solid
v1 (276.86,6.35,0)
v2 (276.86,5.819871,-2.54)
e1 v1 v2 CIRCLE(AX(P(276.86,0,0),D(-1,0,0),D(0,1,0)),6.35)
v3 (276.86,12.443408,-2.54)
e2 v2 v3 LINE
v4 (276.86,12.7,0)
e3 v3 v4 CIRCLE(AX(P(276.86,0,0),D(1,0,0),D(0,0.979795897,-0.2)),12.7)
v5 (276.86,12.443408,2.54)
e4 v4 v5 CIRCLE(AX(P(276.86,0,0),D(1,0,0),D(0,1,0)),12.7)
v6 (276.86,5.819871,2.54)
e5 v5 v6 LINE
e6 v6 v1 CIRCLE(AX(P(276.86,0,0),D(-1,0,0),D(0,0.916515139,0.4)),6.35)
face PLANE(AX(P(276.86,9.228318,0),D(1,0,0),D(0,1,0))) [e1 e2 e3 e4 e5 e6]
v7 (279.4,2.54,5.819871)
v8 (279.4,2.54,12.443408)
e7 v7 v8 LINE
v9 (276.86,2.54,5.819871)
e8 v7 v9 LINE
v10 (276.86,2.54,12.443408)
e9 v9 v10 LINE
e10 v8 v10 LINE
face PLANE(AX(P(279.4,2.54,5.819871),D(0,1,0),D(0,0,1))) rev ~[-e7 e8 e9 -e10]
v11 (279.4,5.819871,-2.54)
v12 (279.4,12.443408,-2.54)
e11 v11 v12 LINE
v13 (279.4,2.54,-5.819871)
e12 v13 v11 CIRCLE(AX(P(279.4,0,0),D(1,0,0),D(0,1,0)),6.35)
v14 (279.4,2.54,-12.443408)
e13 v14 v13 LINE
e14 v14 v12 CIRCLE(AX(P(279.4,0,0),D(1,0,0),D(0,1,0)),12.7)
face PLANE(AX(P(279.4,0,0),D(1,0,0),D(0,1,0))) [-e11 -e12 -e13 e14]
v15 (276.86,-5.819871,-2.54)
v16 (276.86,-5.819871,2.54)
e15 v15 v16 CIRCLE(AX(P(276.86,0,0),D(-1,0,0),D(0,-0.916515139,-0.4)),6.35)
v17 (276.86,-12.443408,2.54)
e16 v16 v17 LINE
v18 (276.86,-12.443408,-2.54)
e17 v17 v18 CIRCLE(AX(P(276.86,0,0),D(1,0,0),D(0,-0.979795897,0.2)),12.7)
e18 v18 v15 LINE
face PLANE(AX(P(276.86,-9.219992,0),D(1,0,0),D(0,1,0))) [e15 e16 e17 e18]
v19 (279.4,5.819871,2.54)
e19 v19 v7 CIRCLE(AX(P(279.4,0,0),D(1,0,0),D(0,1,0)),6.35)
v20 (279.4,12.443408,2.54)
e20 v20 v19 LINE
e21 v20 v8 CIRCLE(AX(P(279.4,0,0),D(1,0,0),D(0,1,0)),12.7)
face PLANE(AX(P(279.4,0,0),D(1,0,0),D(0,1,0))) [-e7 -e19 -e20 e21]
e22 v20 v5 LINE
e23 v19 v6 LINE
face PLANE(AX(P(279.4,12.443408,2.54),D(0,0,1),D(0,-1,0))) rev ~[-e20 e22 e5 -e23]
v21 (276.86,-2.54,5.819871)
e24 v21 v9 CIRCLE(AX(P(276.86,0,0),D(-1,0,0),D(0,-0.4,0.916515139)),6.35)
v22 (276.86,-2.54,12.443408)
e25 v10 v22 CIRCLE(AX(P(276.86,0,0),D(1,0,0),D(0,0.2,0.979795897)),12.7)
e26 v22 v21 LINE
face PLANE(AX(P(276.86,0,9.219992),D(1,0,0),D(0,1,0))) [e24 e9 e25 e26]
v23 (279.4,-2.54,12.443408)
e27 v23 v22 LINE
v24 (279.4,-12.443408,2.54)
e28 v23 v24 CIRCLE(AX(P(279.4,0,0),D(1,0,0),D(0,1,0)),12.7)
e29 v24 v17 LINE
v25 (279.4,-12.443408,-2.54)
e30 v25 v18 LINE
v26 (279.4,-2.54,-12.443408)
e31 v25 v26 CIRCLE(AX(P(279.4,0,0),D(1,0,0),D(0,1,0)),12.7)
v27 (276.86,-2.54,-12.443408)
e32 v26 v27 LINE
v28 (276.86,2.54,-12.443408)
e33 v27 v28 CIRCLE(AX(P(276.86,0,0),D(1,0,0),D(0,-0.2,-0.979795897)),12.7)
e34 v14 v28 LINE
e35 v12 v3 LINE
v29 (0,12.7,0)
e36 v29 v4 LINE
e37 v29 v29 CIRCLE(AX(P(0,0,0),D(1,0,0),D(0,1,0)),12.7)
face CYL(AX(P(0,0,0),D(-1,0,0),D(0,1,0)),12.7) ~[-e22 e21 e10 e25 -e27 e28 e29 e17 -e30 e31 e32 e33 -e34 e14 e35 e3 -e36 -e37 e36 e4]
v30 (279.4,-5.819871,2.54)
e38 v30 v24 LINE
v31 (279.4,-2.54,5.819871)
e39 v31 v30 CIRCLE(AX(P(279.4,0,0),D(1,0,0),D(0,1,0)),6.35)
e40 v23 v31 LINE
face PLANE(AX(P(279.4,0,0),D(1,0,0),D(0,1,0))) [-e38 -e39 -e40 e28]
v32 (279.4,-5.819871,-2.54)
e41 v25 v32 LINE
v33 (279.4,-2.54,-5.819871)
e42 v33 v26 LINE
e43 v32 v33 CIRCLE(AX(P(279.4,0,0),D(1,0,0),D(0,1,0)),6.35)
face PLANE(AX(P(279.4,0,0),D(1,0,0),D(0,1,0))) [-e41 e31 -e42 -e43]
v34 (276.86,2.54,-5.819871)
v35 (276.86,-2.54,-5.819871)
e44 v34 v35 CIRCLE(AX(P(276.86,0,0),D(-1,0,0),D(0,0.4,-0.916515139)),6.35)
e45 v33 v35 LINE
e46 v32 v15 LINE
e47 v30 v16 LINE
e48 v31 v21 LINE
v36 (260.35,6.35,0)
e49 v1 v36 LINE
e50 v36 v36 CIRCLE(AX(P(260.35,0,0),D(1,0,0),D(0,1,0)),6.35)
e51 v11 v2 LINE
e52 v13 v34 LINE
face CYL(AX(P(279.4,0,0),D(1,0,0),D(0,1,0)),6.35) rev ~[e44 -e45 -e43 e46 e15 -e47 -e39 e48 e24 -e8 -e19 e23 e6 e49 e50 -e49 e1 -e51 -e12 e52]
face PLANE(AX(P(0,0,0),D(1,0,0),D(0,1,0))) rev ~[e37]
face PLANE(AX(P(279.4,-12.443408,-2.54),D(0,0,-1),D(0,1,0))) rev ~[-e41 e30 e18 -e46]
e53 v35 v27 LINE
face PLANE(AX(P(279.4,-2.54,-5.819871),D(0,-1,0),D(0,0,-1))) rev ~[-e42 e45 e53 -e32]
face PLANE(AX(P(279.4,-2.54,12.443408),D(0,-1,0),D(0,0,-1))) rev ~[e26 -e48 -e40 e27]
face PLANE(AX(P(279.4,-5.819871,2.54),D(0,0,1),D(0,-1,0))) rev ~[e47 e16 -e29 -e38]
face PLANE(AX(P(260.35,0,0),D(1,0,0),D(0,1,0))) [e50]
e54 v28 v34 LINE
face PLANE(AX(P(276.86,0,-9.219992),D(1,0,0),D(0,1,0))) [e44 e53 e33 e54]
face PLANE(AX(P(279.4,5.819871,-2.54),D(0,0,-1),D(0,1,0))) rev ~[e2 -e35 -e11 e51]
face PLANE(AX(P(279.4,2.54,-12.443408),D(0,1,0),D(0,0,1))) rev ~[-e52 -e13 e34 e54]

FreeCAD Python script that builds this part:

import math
import FreeCAD as App
import Part
import Sketcher
Q = App.Units.Quantity

doc = App.newDocument("Part")
body = doc.addObject("PartDesign::Body", "Body")

# Sketch on YZ plane
sketch1 = body.newObject("Sketcher::SketchObject", "Sketch")
sketch1.AttachmentSupport = (doc.getObject("YZ_Plane"), [""])
sketch1.MapMode = "FlatFace"
sketch1.addGeometry(Part.Circle(App.Vector(0, 0, 0), App.Vector(0, 0, 1), 13), False)
sketch1.addConstraint([
    Sketcher.Constraint("Coincident", 0, 3, -1, 1),
    Sketcher.Constraint("Diameter", 0, Q("1 in")),
])
pad1 = body.newObject("PartDesign::Pad", "Pad")
pad1.Profile = sketch1
pad1.Length = Q("11 in")

# Sketch on YZ plane
sketch2 = body.newObject("Sketcher::SketchObject", "Sketch001")
sketch2.AttachmentSupport = (doc.getObject("YZ_Plane"), [""])
sketch2.MapMode = "FlatFace"
sketch2.AttachmentOffset = App.Placement(App.Vector(0, 0, 11 * 25.4), App.Rotation())
sketch2.addGeometry(Part.Circle(App.Vector(0, 0, 0), App.Vector(0, 0, 1), 6), False)
sketch2.addConstraint([
    Sketcher.Constraint("Coincident", 0, 3, -1, 1),
    Sketcher.Constraint("Diameter", 0, Q("0.5 in")),
])
pocket1 = body.newObject("PartDesign::Pocket", "Pocket")
pocket1.Profile = sketch2
pocket1.Length = Q("0.75 in")

# Sketch on YZ plane
sketch3 = body.newObject("Sketcher::SketchObject", "Sketch002")
sketch3.AttachmentSupport = (doc.getObject("YZ_Plane"), [""])
sketch3.MapMode = "FlatFace"
sketch3.AttachmentOffset = App.Placement(App.Vector(0, 0, 11 * 25.4), App.Rotation())
sketch3.addGeometry([
    Part.ArcOfCircle(Part.Circle(App.Vector(0, 0, 0), App.Vector(0, 0, 1), 12.7), math.radians(78), math.radians(102)),  # 0
    Part.LineSegment(App.Vector(-2.5, 12.4, 0), App.Vector(-2.5, 5.8, 0)),  # 1
    Part.ArcOfCircle(Part.Circle(App.Vector(0, 0, 0), App.Vector(0, 0, 1), 6.3), math.radians(66), math.radians(114)),  # 2
    Part.LineSegment(App.Vector(2.5, 5.8, 0), App.Vector(2.5, 12.4, 0)),  # 3
    Part.ArcOfCircle(Part.Circle(App.Vector(0, 0, 0), App.Vector(0, 0, 1), 12.7), math.radians(168), math.radians(192)),  # 4
    Part.LineSegment(App.Vector(-12.4, -2.5, 0), App.Vector(-5.8, -2.5, 0)),  # 5
    Part.ArcOfCircle(Part.Circle(App.Vector(0, 0, 0), App.Vector(0, 0, 1), 6.3), math.radians(156), math.radians(204)),  # 6
    Part.LineSegment(App.Vector(-5.8, 2.5, 0), App.Vector(-12.4, 2.5, 0)),  # 7
    Part.LineSegment(App.Vector(5.8, -2.5, 0), App.Vector(12.4, -2.5, 0)),  # 8
    Part.ArcOfCircle(Part.Circle(App.Vector(0, 0, 0), App.Vector(0, 0, 1), 12.7), math.radians(-11.54), math.radians(0)),  # 9
    Part.ArcOfCircle(Part.Circle(App.Vector(0, 0, 0), App.Vector(0, 0, 1), 12.7), math.radians(0), math.radians(11.54)),  # 10
    Part.LineSegment(App.Vector(12.4, 2.5, 0), App.Vector(5.8, 2.5, 0)),  # 11
    Part.ArcOfCircle(Part.Circle(App.Vector(0, 0, 0), App.Vector(0, 0, 1), 6.4), math.radians(0), math.radians(24)),  # 12
    Part.ArcOfCircle(Part.Circle(App.Vector(0, 0, 0), App.Vector(0, 0, 1), 6.4), math.radians(-24), math.radians(0)),  # 13
    Part.LineSegment(App.Vector(-2.5, -5.8, 0), App.Vector(-2.5, -12.4, 0)),  # 14
    Part.ArcOfCircle(Part.Circle(App.Vector(0, 0, 0), App.Vector(0, 0, 1), 12.7), math.radians(-102), math.radians(-78)),  # 15
    Part.LineSegment(App.Vector(2.5, -12.4, 0), App.Vector(2.5, -5.8, 0)),  # 16
    Part.ArcOfCircle(Part.Circle(App.Vector(0, 0, 0), App.Vector(0, 0, 1), 6.3), math.radians(-114), math.radians(-66)),  # 17
], False)
sketch3.addConstraint([
    Sketcher.Constraint("Coincident", 0, 2, 1, 1),
    Sketcher.Constraint("Coincident", 1, 2, 2, 2),
    Sketcher.Constraint("Coincident", 2, 1, 3, 1),
    Sketcher.Constraint("Coincident", 3, 2, 0, 1),
    Sketcher.Constraint("Coincident", 4, 2, 5, 1),
    Sketcher.Constraint("Coincident", 5, 2, 6, 2),
    Sketcher.Constraint("Coincident", 6, 1, 7, 1),
    Sketcher.Constraint("Coincident", 7, 2, 4, 1),
    Sketcher.Constraint("Coincident", 8, 2, 9, 1),
    Sketcher.Constraint("Tangent", 9, 2, 10, 1),
    Sketcher.Constraint("Coincident", 10, 2, 11, 1),
    Sketcher.Constraint("Coincident", 11, 2, 12, 2),
    Sketcher.Constraint("Tangent", 12, 1, 13, 2),
    Sketcher.Constraint("Coincident", 13, 1, 8, 1),
    Sketcher.Constraint("Coincident", 14, 2, 15, 1),
    Sketcher.Constraint("Coincident", 15, 2, 16, 1),
    Sketcher.Constraint("Coincident", 16, 2, 17, 2),
    Sketcher.Constraint("Coincident", 17, 1, 14, 1),
    Sketcher.Constraint("Vertical", 1),
    Sketcher.Constraint("Vertical", 3),
    Sketcher.Constraint("Horizontal", 5),
    Sketcher.Constraint("Horizontal", 7),
    Sketcher.Constraint("Horizontal", 8),
    Sketcher.Constraint("Horizontal", 11),
    Sketcher.Constraint("Vertical", 14),
    Sketcher.Constraint("Vertical", 16),
    Sketcher.Constraint("Coincident", 0, 3, -1, 1),
    Sketcher.Constraint("Coincident", 2, 3, -1, 1),
    Sketcher.Constraint("Coincident", 4, 3, -1, 1),
    Sketcher.Constraint("Coincident", 6, 3, -1, 1),
    Sketcher.Constraint("Coincident", 9, 3, -1, 1),
    Sketcher.Constraint("Coincident", 12, 3, -1, 1),
    Sketcher.Constraint("Coincident", 15, 3, -1, 1),
    Sketcher.Constraint("Coincident", 17, 3, -1, 1),
    Sketcher.Constraint("Equal", 0, 4),
    Sketcher.Constraint("Equal", 2, 6),
    Sketcher.Constraint("Equal", 4, 9),
    Sketcher.Constraint("Equal", 9, 10),
    Sketcher.Constraint("Equal", 6, 12),
    Sketcher.Constraint("Equal", 12, 13),
    Sketcher.Constraint("Equal", 10, 15),
    Sketcher.Constraint("Equal", 13, 17),
    Sketcher.Constraint("PointOnObject", 9, 2, -1),
    Sketcher.Constraint("PointOnObject", 12, 1, -1),
    Sketcher.Constraint("Horizontal", 1, 2, 2, 1),
    Sketcher.Constraint("Horizontal", 5, 2, 8, 2),
    Sketcher.Constraint("Horizontal", 7, 2, 10, 2),
    Sketcher.Constraint("Horizontal", 14, 2, 15, 2),
    Sketcher.Constraint("Vertical", 5, 2, 6, 1),
    Sketcher.Constraint("Vertical", 1, 2, 14, 2),
    Sketcher.Constraint("Equal", 11, 1),
    Sketcher.Constraint("Radius", 0, Q("0.5 in")),
    Sketcher.Constraint("Radius", 2, Q("0.25 in")),
    Sketcher.Constraint("DistanceX", 0, 2, -1, 1, Q("0.1 in")),
])
pocket2 = body.newObject("PartDesign::Pocket", "Pocket001")
pocket2.Profile = sketch3
pocket2.Length = Q("0.1 in")

doc.recompute()
